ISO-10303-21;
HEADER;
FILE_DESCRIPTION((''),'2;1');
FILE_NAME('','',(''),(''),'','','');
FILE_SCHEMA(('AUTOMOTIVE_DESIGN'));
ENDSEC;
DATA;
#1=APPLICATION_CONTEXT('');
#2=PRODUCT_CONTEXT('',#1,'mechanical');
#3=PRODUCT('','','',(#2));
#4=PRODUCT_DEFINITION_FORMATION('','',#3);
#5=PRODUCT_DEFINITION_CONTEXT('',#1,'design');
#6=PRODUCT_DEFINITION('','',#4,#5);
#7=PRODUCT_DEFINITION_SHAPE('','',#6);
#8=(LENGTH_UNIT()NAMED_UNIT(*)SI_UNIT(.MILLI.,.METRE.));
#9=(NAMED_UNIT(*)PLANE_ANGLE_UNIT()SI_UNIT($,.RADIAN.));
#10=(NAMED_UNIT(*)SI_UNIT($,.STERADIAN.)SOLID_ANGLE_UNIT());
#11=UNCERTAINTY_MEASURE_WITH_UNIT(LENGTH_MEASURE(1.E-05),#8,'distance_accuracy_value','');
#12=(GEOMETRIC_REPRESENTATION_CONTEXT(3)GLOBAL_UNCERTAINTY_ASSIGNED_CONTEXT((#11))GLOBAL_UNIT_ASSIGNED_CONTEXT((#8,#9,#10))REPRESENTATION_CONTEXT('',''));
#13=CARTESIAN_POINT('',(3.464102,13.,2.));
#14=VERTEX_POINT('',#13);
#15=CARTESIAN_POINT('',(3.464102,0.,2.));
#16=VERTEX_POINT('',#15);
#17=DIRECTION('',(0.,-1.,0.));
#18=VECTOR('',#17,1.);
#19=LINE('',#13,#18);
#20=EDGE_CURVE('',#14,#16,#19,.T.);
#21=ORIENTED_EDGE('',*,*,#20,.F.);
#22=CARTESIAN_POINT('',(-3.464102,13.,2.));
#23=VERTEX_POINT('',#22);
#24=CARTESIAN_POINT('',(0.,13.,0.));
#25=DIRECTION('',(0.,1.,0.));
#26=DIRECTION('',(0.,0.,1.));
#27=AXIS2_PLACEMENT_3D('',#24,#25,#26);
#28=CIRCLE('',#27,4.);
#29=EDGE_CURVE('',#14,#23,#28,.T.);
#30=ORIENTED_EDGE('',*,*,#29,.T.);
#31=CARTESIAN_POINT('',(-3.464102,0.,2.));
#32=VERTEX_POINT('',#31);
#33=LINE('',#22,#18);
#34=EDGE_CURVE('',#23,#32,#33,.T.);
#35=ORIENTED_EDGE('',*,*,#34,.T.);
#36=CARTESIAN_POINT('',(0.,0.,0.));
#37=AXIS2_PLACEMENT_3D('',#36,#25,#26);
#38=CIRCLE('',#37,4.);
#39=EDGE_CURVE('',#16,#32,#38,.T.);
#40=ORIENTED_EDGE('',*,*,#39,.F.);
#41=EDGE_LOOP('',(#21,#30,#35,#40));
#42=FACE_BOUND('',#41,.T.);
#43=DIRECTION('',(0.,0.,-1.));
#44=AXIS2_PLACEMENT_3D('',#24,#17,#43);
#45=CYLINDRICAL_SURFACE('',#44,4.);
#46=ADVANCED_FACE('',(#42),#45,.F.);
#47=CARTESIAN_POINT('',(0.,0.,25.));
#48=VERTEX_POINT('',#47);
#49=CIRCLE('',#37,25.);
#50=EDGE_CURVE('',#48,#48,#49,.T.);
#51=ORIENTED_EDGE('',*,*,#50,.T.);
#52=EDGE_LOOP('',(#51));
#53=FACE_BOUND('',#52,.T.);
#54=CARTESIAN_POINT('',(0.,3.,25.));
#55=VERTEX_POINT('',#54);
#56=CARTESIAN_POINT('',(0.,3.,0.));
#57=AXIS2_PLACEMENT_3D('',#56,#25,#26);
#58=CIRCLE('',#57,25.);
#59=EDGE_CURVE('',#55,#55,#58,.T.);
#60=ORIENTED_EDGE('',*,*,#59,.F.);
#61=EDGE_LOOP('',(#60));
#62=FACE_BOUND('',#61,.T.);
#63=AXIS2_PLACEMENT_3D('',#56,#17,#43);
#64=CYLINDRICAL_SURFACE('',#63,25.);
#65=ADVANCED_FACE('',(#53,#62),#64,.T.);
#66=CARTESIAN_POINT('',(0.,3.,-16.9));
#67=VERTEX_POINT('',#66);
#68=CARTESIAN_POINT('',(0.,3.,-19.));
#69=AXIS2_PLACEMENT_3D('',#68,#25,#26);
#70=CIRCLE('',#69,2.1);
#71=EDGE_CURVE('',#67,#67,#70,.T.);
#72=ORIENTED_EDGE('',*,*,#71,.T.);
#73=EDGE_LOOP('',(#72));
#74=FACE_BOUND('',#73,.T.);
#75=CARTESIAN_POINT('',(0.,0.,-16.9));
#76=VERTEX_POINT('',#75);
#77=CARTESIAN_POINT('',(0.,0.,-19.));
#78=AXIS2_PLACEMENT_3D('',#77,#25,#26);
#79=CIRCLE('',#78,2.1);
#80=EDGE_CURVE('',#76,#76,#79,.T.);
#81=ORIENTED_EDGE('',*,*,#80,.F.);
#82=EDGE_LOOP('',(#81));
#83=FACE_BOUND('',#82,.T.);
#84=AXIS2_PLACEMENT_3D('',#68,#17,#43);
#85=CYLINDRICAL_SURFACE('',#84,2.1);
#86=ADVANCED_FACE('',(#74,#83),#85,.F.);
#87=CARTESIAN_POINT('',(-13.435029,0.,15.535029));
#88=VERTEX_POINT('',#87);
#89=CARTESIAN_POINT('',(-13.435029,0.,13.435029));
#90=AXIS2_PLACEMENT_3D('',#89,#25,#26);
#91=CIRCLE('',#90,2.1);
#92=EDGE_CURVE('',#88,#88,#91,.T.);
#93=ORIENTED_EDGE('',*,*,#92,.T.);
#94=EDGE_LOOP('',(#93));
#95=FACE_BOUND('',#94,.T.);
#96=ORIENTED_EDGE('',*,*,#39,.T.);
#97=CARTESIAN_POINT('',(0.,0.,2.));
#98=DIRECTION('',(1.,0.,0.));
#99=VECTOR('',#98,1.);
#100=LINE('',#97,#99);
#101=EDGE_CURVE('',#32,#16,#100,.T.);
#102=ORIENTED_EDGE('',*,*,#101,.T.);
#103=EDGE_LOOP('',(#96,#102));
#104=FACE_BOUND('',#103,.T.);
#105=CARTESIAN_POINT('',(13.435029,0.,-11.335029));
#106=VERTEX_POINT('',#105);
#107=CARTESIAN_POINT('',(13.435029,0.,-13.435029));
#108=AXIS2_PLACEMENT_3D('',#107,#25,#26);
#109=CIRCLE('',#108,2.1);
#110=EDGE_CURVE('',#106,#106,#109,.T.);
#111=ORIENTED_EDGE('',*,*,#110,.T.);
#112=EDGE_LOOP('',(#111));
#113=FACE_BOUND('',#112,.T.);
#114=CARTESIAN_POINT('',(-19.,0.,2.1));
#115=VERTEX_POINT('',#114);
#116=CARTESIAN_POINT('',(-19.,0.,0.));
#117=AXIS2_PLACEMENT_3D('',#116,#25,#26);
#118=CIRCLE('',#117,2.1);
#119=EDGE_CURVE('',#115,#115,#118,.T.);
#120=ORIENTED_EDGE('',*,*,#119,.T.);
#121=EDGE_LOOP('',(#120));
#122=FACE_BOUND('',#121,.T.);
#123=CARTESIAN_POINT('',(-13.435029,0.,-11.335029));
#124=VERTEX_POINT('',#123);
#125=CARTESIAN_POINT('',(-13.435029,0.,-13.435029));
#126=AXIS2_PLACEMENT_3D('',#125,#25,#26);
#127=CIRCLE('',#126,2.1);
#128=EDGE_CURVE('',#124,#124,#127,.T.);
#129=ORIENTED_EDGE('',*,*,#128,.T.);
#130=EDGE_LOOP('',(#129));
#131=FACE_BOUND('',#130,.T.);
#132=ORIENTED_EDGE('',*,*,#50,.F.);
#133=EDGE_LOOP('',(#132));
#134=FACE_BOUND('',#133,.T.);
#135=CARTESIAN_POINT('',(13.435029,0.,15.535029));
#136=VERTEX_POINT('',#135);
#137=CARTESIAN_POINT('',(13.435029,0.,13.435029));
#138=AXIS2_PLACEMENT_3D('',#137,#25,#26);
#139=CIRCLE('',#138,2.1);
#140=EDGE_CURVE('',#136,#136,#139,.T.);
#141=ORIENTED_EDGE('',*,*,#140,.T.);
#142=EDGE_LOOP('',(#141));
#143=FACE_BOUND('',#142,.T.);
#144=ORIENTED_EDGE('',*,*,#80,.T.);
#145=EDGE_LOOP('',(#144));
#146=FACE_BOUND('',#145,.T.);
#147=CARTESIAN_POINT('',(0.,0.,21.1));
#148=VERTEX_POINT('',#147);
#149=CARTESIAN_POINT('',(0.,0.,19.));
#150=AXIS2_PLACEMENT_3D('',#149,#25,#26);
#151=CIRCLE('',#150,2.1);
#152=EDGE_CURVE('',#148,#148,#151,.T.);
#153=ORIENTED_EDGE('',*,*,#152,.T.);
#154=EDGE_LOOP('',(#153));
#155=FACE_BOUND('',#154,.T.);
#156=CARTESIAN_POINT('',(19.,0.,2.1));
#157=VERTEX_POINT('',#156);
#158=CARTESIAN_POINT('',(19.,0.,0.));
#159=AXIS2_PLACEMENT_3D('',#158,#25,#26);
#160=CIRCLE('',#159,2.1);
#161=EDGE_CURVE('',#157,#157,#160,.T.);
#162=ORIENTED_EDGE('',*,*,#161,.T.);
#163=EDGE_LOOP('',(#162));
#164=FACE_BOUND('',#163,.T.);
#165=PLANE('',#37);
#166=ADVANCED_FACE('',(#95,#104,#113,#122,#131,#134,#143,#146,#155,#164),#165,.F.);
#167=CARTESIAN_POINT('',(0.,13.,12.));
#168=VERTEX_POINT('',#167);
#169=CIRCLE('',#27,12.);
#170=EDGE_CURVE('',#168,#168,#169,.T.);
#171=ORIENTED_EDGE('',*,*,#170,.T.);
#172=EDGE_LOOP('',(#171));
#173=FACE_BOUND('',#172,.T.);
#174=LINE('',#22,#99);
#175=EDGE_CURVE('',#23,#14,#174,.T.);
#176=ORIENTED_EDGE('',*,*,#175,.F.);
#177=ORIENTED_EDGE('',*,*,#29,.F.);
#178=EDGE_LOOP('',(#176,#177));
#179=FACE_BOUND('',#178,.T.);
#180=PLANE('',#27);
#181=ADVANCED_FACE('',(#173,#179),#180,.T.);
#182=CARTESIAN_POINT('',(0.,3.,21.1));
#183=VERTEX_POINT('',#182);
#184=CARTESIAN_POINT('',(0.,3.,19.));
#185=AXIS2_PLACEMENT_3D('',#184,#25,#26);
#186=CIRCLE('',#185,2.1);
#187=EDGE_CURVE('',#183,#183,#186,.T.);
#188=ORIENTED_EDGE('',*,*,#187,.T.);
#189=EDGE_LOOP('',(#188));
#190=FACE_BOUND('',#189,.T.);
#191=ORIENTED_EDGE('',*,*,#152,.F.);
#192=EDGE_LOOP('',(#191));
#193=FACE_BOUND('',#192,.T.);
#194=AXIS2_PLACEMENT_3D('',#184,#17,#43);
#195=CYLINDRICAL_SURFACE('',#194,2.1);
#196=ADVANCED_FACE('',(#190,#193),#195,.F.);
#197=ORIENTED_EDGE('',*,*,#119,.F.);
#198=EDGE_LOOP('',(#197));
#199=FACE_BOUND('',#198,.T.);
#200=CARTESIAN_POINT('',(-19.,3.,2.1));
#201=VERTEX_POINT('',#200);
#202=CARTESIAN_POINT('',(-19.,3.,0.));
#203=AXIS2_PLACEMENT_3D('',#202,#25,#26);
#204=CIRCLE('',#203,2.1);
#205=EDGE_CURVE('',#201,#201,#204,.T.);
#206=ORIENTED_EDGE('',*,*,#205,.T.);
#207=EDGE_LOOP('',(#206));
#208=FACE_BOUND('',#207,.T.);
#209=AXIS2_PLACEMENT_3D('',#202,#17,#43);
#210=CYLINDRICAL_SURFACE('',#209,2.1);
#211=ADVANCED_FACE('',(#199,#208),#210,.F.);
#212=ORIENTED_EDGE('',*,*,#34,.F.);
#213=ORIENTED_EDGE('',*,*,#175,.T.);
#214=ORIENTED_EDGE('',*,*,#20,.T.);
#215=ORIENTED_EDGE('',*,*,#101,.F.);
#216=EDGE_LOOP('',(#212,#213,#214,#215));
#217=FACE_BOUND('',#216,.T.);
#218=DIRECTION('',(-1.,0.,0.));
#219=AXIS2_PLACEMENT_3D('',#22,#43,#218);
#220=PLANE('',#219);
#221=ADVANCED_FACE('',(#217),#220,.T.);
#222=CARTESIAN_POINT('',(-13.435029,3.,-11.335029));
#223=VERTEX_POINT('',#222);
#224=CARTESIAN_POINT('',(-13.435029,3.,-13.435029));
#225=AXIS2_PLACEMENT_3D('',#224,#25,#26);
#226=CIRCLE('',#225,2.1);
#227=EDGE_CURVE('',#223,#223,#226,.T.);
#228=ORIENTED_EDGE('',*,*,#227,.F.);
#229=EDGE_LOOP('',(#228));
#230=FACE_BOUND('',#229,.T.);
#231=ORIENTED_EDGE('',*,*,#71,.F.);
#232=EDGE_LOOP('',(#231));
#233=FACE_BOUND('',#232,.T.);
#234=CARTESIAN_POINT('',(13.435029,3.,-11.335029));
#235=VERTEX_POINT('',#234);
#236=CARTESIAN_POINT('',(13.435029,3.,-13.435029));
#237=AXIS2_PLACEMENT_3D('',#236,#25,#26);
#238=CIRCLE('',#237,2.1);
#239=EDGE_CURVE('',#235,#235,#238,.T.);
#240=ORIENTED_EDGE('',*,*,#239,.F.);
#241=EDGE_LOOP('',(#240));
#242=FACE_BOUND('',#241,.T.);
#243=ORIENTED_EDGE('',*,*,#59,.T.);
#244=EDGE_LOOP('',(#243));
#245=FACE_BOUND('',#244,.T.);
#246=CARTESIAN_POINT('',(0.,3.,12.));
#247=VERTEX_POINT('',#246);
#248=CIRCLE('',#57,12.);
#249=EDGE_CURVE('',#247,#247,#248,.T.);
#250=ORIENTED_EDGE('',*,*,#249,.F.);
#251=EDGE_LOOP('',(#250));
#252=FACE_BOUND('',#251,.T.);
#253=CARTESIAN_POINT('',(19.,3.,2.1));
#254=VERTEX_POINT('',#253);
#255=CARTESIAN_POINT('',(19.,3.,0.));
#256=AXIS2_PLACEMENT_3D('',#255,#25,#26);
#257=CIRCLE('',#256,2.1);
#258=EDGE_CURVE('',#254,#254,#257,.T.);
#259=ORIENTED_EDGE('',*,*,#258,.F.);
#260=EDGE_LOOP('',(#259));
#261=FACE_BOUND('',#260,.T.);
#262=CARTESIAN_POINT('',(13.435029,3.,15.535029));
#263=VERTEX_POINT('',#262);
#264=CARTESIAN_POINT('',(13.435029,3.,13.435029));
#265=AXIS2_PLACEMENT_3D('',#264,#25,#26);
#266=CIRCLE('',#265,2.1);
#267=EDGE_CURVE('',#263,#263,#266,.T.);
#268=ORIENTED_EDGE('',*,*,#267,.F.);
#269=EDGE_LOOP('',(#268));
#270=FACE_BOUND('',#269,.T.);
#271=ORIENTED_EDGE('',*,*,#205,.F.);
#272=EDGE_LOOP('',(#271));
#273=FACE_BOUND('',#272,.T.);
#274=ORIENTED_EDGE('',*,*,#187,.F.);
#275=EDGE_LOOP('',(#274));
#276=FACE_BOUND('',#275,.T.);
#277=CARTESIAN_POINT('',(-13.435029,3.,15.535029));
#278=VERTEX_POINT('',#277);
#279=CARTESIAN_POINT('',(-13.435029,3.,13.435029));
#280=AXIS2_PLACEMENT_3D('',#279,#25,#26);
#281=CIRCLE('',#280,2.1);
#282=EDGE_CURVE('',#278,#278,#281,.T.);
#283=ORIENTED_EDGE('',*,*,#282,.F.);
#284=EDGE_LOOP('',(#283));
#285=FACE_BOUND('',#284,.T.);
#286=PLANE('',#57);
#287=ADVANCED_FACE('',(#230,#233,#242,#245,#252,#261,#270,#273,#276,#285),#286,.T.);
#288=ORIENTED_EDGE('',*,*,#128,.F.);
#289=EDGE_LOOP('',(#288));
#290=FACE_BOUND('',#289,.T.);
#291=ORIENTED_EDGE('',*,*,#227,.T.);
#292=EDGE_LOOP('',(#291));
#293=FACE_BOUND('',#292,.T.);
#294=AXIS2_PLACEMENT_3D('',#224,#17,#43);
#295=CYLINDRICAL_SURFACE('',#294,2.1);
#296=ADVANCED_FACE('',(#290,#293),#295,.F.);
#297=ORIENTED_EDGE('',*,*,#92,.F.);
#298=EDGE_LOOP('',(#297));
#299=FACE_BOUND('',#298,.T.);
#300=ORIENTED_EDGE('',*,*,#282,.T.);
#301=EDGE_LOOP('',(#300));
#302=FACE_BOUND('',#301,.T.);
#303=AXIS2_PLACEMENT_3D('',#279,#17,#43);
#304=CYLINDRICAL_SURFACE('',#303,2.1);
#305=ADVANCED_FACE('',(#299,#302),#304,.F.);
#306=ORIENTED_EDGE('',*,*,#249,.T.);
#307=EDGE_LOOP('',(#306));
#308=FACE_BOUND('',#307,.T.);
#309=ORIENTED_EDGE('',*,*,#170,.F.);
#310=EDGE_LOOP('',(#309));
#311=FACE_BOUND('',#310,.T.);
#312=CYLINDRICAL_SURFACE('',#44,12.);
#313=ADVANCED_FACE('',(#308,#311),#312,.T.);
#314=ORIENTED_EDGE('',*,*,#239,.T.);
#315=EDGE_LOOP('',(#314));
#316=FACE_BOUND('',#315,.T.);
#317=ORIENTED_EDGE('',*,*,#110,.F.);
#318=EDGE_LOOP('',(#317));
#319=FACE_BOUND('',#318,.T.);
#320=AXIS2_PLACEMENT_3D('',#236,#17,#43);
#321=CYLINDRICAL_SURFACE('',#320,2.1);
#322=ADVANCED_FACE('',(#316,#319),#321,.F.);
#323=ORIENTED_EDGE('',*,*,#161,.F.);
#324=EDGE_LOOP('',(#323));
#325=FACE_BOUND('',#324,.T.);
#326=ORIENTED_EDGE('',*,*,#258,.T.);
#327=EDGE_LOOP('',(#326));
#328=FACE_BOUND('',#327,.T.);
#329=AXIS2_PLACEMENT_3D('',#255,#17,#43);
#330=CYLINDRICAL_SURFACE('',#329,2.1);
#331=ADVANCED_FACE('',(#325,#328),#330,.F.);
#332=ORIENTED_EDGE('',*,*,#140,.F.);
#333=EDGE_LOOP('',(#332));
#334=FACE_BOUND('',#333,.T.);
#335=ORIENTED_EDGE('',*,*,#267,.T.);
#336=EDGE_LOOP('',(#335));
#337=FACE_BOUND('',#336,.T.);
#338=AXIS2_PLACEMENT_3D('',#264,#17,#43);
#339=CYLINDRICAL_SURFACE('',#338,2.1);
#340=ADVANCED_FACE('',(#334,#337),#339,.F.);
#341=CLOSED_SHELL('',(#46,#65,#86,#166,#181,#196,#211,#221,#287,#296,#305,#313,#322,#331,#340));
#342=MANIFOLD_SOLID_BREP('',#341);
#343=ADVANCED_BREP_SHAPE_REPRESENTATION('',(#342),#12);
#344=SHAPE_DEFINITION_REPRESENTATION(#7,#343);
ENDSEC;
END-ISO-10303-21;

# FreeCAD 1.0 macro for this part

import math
import FreeCAD as App
import Part
import Sketcher
from FreeCAD import Vector
Q = App.Units.Quantity

doc = App.newDocument("Part")
params = doc.addObject("Spreadsheet::Sheet", "Params")
for row, (alias, value) in enumerate([
    ("sketch1_diameter", "50 mm"),
    ("sketch1_diameter2", "4.2 mm"),
    ("pad1_length", "3 mm"),
    ("sketch2_diameter", "24 mm"),
    ("sketch2_radius", "4 mm"),
    ("pad2_length", "10 mm"),
    ("sketch3_radius", "4 mm"),
    ("pocket1_length", "20 mm"),
], start=1):
    params.set(f"A{row}", alias)
    params.set(f"B{row}", "=" + value)
    params.setAlias(f"B{row}", alias)

body = doc.addObject("PartDesign::Body", "Body")

sketch1 = body.newObject("Sketcher::SketchObject", "Sketch")
sketch1.AttachmentSupport = (doc.getObject("XZ_Plane"), [""])
sketch1.MapMode = "FlatFace"
sketch1.addGeometry([
    Part.Circle(Vector(0, 0, 0), Vector(0, 0, 1), 25),
    Part.Circle(Vector(-13.4, -13.4, 0), Vector(0, 0, 1), 2.1),
    Part.Circle(Vector(0, -19, 0), Vector(0, 0, 1), 2.1),
    Part.Circle(Vector(-19, 0, 0), Vector(0, 0, 1), 2.1),
    Part.Circle(Vector(-13.4, 13.4, 0), Vector(0, 0, 1), 2.1),
    Part.Circle(Vector(13.4, -13.4, 0), Vector(0, 0, 1), 2.1),
    Part.Circle(Vector(19, 0, 0), Vector(0, 0, 1), 2.1),
    Part.Circle(Vector(0, 19, 0), Vector(0, 0, 1), 2.1),
    Part.Circle(Vector(13.4, 13.4, 0), Vector(0, 0, 1), 2.1),
], False)
sketch1.addConstraint([
    Sketcher.Constraint("Coincident", 0, 3, -1, 1),
    Sketcher.Constraint("Equal", 1, 2),
    Sketcher.Constraint("Equal", 2, 3),
    Sketcher.Constraint("Equal", 3, 4),
    Sketcher.Constraint("Equal", 4, 5),
    Sketcher.Constraint("Equal", 5, 6),
    Sketcher.Constraint("Equal", 6, 7),
    Sketcher.Constraint("Equal", 7, 8),
    Sketcher.Constraint("Symmetric", 4, 3, 5, 3, -1, 1),
    Sketcher.Constraint("Symmetric", 3, 3, 6, 3, -1, 1),
    Sketcher.Constraint("Symmetric", 2, 3, 7, 3, -1, 1),
    Sketcher.Constraint("Symmetric", 1, 3, 8, 3, -1, 1),
    Sketcher.Constraint("Symmetric", 1, 3, 5, 3, -2),
    Sketcher.Constraint("PointOnObject", 2, 3, -2),
    Sketcher.Constraint("PointOnObject", 3, 3, -1),
    Sketcher.Constraint("Diameter", 0, Q("50 mm")),
    Sketcher.Constraint("Diameter", 1, Q("4.2 mm")),
    Sketcher.Constraint("DistanceY", 2, 3, -1, 1, Q("19 mm")),
    Sketcher.Constraint("DistanceX", 3, 3, -1, 1, Q("19 mm")),
    Sketcher.Constraint("DistanceX", 1, 3, -1, 1, Q("13.435029 mm")),
    Sketcher.Constraint("DistanceY", 1, 3, -1, 1, Q("13.435029 mm")),
])
sketch1.setExpression("Constraints[15]", "Params.sketch1_diameter")
sketch1.setExpression("Constraints[16]", "Params.sketch1_diameter2")
pad1 = body.newObject("PartDesign::Pad", "Pad")
pad1.Profile = sketch1
pad1.setExpression("Length", "Params.pad1_length")
pad1.Reversed = True

sketch2 = body.newObject("Sketcher::SketchObject", "Sketch001")
sketch2.AttachmentSupport = (doc.getObject("XZ_Plane"), [""])
sketch2.MapMode = "FlatFace"
sketch2.AttachmentOffset = App.Placement(Vector(0, 0, -3), App.Rotation())
sketch2.addGeometry([
    Part.Circle(Vector(0, 0, 0), Vector(0, 0, 1), 12),
    Part.LineSegment(Vector(3.5, 2, 0), Vector(-3.5, 2, 0)),
    Part.ArcOfCircle(Part.Circle(Vector(0, 0, 0), Vector(0, 0, 1), 4), math.radians(150), math.radians(390)),
], False)
sketch2.addConstraint([
    Sketcher.Constraint("Coincident", 1, 1, 2, 2),
    Sketcher.Constraint("Coincident", 2, 1, 1, 2),
    Sketcher.Constraint("Horizontal", 1),
    Sketcher.Constraint("Coincident", 0, 3, -1, 1),
    Sketcher.Constraint("Coincident", 2, 3, -1, 1),
    Sketcher.Constraint("Diameter", 0, Q("24 mm")),
    Sketcher.Constraint("Radius", 2, Q("4 mm")),
    Sketcher.Constraint("DistanceY", -1, 1, 1, 1, Q("2 mm")),
])
sketch2.setExpression("Constraints[5]", "Params.sketch2_diameter")
sketch2.setExpression("Constraints[6]", "Params.sketch2_radius")
pad2 = body.newObject("PartDesign::Pad", "Pad001")
pad2.Profile = sketch2
pad2.setExpression("Length", "Params.pad2_length")
pad2.Reversed = True

sketch3 = body.newObject("Sketcher::SketchObject", "Sketch002")
sketch3.AttachmentSupport = (doc.getObject("XZ_Plane"), [""])
sketch3.MapMode = "FlatFace"
sketch3.AttachmentOffset = App.Placement(Vector(0, 0, 7), App.Rotation())
sketch3.addGeometry([
    Part.LineSegment(Vector(-3.5, 2, 0), Vector(3.5, 2, 0)),
    Part.ArcOfCircle(Part.Circle(Vector(0, 0, 0), Vector(0, 0, 1), 4), math.radians(150), math.radians(390)),
], False)
sketch3.addConstraint([
    Sketcher.Constraint("Coincident", 0, 1, 1, 1),
    Sketcher.Constraint("Coincident", 1, 2, 0, 2),
    Sketcher.Constraint("Horizontal", 0),
    Sketcher.Constraint("Coincident", 1, 3, -1, 1),
    Sketcher.Constraint("Radius", 1, Q("4 mm")),
    Sketcher.Constraint("DistanceY", -1, 1, 0, 1, Q("2 mm")),
])
sketch3.setExpression("Constraints[4]", "Params.sketch3_radius")
pocket1 = body.newObject("PartDesign::Pocket", "Pocket")
pocket1.Profile = sketch3
pocket1.setExpression("Length", "Params.pocket1_length")

doc.recompute()
